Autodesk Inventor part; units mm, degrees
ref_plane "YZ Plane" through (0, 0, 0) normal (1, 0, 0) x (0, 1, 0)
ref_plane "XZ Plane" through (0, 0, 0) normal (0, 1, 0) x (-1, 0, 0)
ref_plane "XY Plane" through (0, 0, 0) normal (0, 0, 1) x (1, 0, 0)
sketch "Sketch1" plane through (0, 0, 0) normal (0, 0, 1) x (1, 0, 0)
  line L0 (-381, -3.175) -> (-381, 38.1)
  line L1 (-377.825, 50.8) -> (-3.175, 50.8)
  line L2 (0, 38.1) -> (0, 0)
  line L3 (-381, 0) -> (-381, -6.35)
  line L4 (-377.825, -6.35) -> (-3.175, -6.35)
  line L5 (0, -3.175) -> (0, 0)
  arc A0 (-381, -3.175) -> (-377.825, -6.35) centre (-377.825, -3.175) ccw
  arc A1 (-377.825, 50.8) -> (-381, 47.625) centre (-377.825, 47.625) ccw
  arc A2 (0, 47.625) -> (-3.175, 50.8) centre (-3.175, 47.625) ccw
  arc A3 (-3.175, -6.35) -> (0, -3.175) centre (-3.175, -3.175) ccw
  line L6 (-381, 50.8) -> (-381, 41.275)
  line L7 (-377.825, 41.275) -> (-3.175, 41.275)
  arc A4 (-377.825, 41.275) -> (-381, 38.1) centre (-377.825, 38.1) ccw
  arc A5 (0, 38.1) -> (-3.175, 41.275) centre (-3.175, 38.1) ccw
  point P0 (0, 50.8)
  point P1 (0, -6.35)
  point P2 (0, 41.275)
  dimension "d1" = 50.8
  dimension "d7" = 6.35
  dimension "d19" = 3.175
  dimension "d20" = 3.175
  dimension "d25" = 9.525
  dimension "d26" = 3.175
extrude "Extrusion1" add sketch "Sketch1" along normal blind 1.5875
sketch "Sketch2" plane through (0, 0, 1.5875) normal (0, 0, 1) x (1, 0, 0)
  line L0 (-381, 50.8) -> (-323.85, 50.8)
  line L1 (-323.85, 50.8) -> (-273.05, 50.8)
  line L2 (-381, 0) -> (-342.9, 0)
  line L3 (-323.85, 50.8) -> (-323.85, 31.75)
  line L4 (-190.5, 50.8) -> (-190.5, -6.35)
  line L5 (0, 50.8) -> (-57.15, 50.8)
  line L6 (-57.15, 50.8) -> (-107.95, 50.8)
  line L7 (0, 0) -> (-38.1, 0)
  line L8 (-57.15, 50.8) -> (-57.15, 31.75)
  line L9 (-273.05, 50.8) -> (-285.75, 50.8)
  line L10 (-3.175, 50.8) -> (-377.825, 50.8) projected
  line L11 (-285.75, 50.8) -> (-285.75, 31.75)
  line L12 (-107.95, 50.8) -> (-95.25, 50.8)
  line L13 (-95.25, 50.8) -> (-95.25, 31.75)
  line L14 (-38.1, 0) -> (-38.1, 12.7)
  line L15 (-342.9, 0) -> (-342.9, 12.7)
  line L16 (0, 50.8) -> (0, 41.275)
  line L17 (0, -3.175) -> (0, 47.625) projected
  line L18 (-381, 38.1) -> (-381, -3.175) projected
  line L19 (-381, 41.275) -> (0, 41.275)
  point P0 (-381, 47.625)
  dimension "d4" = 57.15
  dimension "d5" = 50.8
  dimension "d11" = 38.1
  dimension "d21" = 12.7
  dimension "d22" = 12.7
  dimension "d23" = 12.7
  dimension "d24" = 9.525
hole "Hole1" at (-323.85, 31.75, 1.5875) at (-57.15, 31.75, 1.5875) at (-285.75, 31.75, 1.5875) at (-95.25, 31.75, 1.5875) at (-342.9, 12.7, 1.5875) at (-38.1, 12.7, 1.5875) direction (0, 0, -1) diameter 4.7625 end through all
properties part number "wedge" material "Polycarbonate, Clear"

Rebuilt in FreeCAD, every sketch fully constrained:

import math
import FreeCAD as App
import Part
import Sketcher
from FreeCAD import Vector
Q = App.Units.Quantity

doc = App.newDocument("Part")
params = doc.addObject("Spreadsheet::Sheet", "Params")
for row, (alias, value) in enumerate([
    ("sketch1_radius", "0.125 in"),
    ("pad1_length", "0.0625 in"),
    ("sketch2_diameter", "0.1875 in"),
    ("hole_diameter", "0.1875 in"),
], start=1):
    params.set(f"A{row}", alias)
    params.set(f"B{row}", "=" + value)
    params.setAlias(f"B{row}", alias)

body = doc.addObject("PartDesign::Body", "Body")

sketch1 = body.newObject("Sketcher::SketchObject", "Sketch")
sketch1.AttachmentSupport = (doc.getObject("XY_Plane"), [""])
sketch1.MapMode = "FlatFace"
sketch1.addGeometry([
    Part.LineSegment(Vector(-381, 38.1, 0), Vector(-381, -3.2, 0)),
    Part.ArcOfCircle(Part.Circle(Vector(-377.8, -3.2, 0), Vector(0, 0, 1), 3.2), math.radians(180), math.radians(270)),
    Part.LineSegment(Vector(-377.8, -6.3, 0), Vector(-3.2, -6.3, 0)),
    Part.ArcOfCircle(Part.Circle(Vector(-3.2, -3.2, 0), Vector(0, 0, 1), 3.2), math.radians(-90), math.radians(0)),
    Part.LineSegment(Vector(0, -3.2, 0), Vector(0, 38.1, 0)),
    Part.ArcOfCircle(Part.Circle(Vector(-3.2, 38.1, 0), Vector(0, 0, 1), 3.2), math.radians(0), math.radians(90)),
    Part.LineSegment(Vector(-3.2, 41.3, 0), Vector(-377.8, 41.3, 0)),
    Part.ArcOfCircle(Part.Circle(Vector(-377.8, 38.1, 0), Vector(0, 0, 1), 3.2), math.radians(90), math.radians(180)),
], False)
sketch1.addConstraint([
    Sketcher.Constraint("Tangent", 0, 2, 1, 1),
    Sketcher.Constraint("Tangent", 1, 2, 2, 1),
    Sketcher.Constraint("Tangent", 2, 2, 3, 1),
    Sketcher.Constraint("Tangent", 3, 2, 4, 1),
    Sketcher.Constraint("Tangent", 4, 2, 5, 1),
    Sketcher.Constraint("Tangent", 5, 2, 6, 1),
    Sketcher.Constraint("Tangent", 6, 2, 7, 1),
    Sketcher.Constraint("Tangent", 7, 2, 0, 1),
    Sketcher.Constraint("Vertical", 0),
    Sketcher.Constraint("Horizontal", 2),
    Sketcher.Constraint("Vertical", 4),
    Sketcher.Constraint("Horizontal", 6),
    Sketcher.Constraint("Equal", 1, 3),
    Sketcher.Constraint("Equal", 3, 5),
    Sketcher.Constraint("Equal", 5, 7),
    Sketcher.Constraint("PointOnObject", 3, 2, -2),
    Sketcher.Constraint("Radius", 1, Q("0.125 in")),
    Sketcher.Constraint("DistanceY", 1, 2, -1, 1, Q("0.25 in")),
    Sketcher.Constraint("DistanceX", 0, 2, -1, 1, Q("15 in")),
    Sketcher.Constraint("DistanceY", -1, 1, 5, 3, Q("1.5 in")),
])
sketch1.setExpression("Constraints[16]", "Params.sketch1_radius")
pad1 = body.newObject("PartDesign::Pad", "Pad")
pad1.Profile = sketch1
pad1.setExpression("Length", "Params.pad1_length")

sketch2 = body.newObject("Sketcher::SketchObject", "Sketch001")
sketch2.AttachmentSupport = (doc.getObject("XY_Plane"), [""])
sketch2.MapMode = "FlatFace"
sketch2.AttachmentOffset = App.Placement(Vector(0, 0, 0.0625 * 25.4), App.Rotation())
sketch2.addGeometry([
    Part.Circle(Vector(-323.9, 31.8, 0), Vector(0, 0, 1), 2.4),
    Part.Circle(Vector(-57.1, 31.8, 0), Vector(0, 0, 1), 2.4),
    Part.Circle(Vector(-285.8, 31.8, 0), Vector(0, 0, 1), 2.4),
    Part.Circle(Vector(-95.2, 31.8, 0), Vector(0, 0, 1), 2.4),
    Part.Circle(Vector(-342.9, 12.7, 0), Vector(0, 0, 1), 2.4),
    Part.Circle(Vector(-38.1, 12.7, 0), Vector(0, 0, 1), 2.4),
], False)
sketch2.addConstraint([
    Sketcher.Constraint("Equal", 0, 1),
    Sketcher.Constraint("Equal", 1, 2),
    Sketcher.Constraint("Equal", 2, 3),
    Sketcher.Constraint("Equal", 3, 4),
    Sketcher.Constraint("Equal", 4, 5),
    Sketcher.Constraint("Horizontal", 0, 3, 1, 3),
    Sketcher.Constraint("Horizontal", 1, 3, 2, 3),
    Sketcher.Constraint("Horizontal", 2, 3, 3, 3),
    Sketcher.Constraint("Horizontal", 4, 3, 5, 3),
    Sketcher.Constraint("Diameter", 0, Q("0.1875 in")),
    Sketcher.Constraint("DistanceX", 2, 3, 1, 3, Q("9 in")),
    Sketcher.Constraint("DistanceX", 0, 3, 3, 3, Q("9 in")),
    Sketcher.Constraint("DistanceX", 4, 3, 5, 3, Q("12 in")),
    Sketcher.Constraint("DistanceX", 4, 3, -1, 1, Q("13.5 in")),
    Sketcher.Constraint("DistanceY", -1, 1, 4, 3, Q("0.5 in")),
    Sketcher.Constraint("DistanceX", 0, 3, 1, 3, Q("10.5 in")),
    Sketcher.Constraint("DistanceX", 0, 3, -1, 1, Q("12.75 in")),
    Sketcher.Constraint("DistanceY", -1, 1, 0, 3, Q("1.25 in")),
])
sketch2.setExpression("Constraints[9]", "Params.sketch2_diameter")
doc.recompute()
hole = body.newObject("PartDesign::Hole", "Hole")
hole.Profile = sketch2
hole.ThreadType = "None"
hole.setExpression("Diameter", "Params.hole_diameter")
hole.DepthType = "ThroughAll"

doc.recompute()
